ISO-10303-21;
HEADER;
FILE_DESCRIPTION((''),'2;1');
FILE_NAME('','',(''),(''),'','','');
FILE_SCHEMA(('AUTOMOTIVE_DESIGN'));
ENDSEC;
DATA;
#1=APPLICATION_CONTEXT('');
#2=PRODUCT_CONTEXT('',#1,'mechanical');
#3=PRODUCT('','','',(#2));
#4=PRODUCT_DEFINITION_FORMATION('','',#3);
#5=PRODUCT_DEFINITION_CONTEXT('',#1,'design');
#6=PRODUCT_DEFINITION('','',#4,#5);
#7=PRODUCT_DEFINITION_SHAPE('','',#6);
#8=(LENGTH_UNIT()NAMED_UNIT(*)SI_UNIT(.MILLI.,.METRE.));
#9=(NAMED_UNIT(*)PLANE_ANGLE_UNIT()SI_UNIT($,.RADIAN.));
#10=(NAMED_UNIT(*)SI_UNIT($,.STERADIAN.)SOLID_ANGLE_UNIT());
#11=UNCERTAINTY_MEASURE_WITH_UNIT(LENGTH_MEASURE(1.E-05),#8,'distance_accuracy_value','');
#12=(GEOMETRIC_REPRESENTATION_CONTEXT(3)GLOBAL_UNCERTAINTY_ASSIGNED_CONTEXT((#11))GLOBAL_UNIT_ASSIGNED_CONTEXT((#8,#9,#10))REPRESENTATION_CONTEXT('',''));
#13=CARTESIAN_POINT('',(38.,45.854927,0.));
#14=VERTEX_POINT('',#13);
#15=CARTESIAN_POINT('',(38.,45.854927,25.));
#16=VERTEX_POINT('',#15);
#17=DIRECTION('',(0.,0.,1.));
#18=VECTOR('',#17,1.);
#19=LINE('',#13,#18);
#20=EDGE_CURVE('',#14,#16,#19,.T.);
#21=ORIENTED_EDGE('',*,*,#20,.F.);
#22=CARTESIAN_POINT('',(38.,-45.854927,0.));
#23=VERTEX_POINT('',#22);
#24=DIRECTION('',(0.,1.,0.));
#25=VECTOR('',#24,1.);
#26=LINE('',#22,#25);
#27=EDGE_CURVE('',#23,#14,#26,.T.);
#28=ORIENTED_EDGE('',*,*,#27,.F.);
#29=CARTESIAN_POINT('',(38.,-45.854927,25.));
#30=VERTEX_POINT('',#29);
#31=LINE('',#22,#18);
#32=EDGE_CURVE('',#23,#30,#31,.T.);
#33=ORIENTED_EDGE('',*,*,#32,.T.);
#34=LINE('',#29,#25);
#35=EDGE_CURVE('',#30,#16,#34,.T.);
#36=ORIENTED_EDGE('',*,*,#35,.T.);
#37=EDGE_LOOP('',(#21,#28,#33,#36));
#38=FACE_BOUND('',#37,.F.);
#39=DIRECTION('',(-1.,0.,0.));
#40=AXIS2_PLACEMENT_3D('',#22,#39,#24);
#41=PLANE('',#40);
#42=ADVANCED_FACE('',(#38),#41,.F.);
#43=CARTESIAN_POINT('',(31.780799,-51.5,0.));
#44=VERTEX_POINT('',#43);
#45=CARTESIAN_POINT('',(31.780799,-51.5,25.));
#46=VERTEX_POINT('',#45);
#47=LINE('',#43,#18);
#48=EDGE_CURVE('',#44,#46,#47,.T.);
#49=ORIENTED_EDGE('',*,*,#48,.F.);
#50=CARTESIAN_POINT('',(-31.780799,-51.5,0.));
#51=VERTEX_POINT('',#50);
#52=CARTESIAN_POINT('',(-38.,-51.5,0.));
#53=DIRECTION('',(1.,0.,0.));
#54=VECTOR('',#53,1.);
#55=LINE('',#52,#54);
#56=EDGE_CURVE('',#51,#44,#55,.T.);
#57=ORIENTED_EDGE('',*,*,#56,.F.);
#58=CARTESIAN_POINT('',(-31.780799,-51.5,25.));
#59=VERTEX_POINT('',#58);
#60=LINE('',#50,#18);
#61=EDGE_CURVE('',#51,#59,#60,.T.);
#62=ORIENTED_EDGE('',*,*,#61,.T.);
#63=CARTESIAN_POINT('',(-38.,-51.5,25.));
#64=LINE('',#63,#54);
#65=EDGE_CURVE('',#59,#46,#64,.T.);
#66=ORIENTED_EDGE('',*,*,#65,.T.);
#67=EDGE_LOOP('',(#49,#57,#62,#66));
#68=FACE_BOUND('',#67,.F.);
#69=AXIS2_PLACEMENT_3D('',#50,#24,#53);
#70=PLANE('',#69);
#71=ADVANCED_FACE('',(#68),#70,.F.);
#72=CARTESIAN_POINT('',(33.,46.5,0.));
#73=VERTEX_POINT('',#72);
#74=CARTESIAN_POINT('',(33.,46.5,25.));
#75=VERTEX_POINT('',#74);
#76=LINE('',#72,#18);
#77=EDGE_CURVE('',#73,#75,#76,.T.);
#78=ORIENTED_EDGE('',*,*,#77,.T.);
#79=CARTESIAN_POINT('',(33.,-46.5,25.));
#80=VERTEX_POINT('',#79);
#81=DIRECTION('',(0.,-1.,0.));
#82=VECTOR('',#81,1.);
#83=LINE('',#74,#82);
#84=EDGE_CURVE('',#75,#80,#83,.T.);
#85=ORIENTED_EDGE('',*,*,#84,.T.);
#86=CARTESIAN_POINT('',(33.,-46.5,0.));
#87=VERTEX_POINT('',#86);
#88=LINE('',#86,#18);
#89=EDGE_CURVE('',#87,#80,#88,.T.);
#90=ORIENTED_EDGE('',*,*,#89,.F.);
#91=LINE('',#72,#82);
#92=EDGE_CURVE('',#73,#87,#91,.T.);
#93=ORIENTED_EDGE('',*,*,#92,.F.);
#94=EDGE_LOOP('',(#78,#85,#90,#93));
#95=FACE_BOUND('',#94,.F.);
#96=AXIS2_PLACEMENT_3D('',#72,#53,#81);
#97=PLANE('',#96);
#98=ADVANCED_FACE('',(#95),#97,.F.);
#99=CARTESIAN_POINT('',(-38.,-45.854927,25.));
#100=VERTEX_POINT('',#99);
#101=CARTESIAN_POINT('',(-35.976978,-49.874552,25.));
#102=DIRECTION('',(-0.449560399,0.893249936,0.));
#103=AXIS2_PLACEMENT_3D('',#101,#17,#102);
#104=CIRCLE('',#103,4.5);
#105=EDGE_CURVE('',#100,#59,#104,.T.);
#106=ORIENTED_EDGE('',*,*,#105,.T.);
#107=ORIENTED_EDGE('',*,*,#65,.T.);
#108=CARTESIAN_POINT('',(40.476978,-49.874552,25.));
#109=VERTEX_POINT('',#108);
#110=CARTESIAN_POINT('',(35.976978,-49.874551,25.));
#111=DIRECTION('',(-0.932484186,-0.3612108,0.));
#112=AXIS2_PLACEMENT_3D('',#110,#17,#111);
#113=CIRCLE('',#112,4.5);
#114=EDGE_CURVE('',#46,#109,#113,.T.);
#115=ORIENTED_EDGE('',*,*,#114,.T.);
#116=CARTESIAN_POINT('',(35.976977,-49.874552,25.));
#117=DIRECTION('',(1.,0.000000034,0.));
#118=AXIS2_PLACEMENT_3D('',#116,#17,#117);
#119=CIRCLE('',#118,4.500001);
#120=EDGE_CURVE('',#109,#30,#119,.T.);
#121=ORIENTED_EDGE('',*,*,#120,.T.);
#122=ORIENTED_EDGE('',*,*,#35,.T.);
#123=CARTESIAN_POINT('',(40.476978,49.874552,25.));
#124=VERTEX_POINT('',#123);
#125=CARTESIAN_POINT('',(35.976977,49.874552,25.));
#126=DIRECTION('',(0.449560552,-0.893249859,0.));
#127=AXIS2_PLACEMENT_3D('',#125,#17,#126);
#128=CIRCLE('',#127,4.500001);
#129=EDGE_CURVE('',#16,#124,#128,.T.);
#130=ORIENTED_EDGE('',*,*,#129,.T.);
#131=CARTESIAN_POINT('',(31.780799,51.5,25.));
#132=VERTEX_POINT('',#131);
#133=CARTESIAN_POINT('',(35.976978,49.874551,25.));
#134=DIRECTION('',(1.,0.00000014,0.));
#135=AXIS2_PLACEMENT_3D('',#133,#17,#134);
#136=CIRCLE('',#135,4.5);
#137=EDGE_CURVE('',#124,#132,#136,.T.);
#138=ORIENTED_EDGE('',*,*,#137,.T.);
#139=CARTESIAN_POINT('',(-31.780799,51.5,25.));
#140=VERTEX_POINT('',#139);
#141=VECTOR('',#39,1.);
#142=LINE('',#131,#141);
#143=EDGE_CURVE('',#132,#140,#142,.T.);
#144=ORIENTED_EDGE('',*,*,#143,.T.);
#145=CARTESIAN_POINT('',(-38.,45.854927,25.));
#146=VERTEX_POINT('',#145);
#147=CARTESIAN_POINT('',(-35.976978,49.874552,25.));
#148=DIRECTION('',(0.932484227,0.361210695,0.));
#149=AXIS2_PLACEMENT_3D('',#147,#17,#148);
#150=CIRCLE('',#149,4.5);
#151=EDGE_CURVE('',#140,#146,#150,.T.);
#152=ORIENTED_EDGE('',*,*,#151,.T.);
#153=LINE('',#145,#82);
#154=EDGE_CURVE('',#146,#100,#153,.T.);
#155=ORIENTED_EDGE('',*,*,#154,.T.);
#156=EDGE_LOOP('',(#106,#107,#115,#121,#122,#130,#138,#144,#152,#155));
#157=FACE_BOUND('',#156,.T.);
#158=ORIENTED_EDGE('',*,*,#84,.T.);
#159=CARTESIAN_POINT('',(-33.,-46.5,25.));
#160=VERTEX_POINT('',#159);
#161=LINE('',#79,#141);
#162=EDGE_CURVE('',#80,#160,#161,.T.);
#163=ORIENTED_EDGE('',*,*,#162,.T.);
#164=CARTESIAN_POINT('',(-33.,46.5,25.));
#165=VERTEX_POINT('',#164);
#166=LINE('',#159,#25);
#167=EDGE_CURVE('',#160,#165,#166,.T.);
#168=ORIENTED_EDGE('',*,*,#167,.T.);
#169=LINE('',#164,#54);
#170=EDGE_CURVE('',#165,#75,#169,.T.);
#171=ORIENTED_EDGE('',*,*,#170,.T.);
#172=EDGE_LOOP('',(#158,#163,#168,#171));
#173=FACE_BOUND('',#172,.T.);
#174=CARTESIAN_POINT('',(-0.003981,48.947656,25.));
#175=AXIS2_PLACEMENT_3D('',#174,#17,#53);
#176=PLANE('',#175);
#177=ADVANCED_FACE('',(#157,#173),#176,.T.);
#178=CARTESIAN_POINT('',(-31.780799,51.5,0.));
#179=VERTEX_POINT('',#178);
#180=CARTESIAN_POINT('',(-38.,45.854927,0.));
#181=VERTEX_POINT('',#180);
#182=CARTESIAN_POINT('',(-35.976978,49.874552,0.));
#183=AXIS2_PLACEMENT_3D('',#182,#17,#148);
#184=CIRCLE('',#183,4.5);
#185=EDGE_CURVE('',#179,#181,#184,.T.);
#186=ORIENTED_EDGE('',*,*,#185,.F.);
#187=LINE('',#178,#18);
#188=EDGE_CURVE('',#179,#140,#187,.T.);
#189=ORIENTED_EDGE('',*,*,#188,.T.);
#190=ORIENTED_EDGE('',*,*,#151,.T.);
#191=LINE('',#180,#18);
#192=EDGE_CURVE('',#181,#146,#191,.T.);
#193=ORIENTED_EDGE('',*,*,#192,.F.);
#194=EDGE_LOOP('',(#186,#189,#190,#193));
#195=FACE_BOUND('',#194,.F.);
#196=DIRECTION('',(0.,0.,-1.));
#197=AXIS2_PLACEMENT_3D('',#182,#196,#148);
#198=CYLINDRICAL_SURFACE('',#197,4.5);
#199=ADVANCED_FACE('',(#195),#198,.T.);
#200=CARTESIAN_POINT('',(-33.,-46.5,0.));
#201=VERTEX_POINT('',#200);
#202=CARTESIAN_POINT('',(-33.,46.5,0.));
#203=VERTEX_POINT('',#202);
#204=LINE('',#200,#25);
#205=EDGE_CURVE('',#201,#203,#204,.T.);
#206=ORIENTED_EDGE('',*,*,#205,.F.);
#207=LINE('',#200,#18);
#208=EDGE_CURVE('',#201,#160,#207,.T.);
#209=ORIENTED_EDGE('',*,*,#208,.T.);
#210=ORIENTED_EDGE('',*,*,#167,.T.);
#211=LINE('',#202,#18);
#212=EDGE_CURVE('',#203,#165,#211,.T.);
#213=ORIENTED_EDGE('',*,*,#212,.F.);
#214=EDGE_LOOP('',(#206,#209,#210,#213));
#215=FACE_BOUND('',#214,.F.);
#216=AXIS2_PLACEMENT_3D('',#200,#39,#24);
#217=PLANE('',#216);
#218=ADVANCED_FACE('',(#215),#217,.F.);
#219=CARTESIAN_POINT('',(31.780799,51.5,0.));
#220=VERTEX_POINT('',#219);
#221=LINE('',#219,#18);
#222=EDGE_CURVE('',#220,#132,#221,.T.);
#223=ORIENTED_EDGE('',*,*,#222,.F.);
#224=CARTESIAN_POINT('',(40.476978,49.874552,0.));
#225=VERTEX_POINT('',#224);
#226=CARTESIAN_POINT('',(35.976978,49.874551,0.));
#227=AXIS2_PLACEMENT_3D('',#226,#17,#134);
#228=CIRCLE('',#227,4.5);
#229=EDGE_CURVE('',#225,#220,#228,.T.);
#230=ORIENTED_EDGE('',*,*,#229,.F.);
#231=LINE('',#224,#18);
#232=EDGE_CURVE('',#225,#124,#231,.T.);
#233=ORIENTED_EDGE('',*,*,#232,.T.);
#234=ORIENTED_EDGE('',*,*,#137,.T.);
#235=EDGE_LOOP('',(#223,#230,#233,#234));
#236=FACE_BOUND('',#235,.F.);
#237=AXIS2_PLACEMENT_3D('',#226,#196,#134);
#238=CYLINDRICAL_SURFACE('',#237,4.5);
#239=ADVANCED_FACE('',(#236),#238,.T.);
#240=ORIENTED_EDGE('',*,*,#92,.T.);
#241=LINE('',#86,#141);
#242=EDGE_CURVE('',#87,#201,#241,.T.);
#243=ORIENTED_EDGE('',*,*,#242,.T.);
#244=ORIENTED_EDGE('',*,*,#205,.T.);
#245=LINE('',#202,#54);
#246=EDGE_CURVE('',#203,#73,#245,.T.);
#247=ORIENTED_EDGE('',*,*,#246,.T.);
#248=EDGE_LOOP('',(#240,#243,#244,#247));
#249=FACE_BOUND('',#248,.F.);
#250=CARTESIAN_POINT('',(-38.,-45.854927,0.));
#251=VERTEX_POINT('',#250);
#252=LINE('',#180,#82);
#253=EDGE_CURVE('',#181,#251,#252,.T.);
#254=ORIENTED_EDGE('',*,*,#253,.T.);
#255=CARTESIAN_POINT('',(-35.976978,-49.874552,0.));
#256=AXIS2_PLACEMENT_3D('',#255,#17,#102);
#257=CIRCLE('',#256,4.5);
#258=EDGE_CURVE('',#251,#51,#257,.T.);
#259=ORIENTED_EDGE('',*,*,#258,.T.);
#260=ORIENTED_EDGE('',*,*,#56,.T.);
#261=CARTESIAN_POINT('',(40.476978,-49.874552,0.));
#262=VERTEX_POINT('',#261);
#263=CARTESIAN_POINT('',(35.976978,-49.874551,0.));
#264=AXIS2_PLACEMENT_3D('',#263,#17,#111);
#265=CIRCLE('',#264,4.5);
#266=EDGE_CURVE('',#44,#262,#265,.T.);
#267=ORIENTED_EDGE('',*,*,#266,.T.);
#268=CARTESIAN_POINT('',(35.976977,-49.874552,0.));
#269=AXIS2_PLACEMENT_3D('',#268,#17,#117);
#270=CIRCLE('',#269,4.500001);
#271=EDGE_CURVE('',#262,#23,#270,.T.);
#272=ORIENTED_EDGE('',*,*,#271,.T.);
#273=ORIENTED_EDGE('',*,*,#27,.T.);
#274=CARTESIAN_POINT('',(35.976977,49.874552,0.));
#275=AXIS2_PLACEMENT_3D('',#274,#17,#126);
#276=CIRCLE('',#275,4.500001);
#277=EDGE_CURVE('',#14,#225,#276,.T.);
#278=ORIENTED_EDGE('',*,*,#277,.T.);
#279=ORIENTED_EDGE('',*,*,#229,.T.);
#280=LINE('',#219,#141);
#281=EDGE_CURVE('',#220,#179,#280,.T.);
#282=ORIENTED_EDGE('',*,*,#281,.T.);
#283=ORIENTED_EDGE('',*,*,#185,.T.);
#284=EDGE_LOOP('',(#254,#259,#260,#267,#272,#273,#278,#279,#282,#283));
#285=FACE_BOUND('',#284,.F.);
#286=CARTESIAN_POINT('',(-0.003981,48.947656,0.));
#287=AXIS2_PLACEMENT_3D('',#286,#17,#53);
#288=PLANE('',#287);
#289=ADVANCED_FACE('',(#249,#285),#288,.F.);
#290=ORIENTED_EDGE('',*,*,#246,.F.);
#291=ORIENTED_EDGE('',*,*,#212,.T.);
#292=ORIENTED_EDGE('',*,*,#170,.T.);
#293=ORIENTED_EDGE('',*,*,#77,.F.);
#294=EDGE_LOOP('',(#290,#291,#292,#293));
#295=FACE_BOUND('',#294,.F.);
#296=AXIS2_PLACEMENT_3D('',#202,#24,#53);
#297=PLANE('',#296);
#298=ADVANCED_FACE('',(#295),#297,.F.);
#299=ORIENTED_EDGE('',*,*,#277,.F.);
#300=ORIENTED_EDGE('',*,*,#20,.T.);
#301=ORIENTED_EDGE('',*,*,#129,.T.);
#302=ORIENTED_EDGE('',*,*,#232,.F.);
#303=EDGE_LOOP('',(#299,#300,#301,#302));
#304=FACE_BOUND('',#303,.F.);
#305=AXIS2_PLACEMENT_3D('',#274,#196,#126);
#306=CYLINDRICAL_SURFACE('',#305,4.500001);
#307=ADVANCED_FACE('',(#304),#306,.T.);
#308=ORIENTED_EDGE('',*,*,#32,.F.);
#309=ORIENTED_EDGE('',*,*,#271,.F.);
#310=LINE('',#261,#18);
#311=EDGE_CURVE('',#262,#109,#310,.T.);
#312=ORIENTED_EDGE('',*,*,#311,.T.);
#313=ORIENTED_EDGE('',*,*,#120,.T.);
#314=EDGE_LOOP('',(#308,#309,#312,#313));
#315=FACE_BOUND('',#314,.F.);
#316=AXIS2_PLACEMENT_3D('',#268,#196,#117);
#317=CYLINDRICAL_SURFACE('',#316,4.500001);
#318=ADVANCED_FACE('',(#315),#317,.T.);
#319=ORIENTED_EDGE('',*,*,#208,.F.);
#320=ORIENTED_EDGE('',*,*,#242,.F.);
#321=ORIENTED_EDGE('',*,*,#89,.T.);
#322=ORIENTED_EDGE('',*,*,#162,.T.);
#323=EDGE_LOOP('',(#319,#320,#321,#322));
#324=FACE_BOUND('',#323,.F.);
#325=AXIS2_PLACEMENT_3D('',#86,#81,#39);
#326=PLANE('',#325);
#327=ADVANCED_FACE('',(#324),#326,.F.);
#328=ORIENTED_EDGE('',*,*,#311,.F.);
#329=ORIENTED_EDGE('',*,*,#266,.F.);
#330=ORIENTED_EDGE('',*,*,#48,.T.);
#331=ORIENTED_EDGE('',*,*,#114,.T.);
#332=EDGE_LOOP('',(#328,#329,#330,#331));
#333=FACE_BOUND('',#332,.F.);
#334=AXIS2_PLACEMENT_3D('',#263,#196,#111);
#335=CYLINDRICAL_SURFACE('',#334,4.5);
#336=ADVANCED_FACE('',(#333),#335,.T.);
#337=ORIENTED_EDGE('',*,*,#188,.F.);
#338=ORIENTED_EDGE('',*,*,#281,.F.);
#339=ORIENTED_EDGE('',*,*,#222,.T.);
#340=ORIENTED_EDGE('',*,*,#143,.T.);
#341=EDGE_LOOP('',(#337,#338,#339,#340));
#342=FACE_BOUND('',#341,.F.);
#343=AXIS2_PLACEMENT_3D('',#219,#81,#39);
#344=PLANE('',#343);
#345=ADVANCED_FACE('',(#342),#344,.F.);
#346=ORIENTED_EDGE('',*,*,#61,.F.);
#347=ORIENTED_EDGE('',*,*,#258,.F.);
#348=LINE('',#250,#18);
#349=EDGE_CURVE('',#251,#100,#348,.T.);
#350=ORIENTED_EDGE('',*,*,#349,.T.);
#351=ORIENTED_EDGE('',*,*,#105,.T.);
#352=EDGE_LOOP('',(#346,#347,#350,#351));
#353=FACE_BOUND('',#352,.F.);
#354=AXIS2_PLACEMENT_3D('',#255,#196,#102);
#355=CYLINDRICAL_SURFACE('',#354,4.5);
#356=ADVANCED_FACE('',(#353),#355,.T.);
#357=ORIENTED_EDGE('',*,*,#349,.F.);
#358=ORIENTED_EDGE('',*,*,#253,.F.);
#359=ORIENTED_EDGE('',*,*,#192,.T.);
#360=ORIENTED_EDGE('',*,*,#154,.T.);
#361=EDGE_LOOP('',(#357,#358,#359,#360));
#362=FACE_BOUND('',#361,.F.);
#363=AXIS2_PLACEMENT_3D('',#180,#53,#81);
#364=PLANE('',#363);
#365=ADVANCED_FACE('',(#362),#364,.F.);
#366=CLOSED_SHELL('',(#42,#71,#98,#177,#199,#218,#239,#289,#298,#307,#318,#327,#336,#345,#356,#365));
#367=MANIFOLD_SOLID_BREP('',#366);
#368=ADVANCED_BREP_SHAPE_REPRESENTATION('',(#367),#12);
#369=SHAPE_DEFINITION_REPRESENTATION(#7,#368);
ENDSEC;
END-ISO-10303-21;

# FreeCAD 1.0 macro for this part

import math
import FreeCAD as App
import Part
import Sketcher


def add_polygon(sketch, points):
    """Adds a closed chain of lines whose ends are joined by coincident constraints."""
    first, n = sketch.GeometryCount, len(points)
    for a, b in zip(points, points[1:] + points[:1]):
        sketch.addGeometry(Part.LineSegment(App.Vector(*a, 0), App.Vector(*b, 0)), False)
    for i in range(n):
        sketch.addConstraint(Sketcher.Constraint("Coincident", first + i, 2, first + (i + 1) % n, 1))

doc = App.newDocument("Part")
body = doc.addObject("PartDesign::Body", "Body")

# Sketch on XY plane
sketch1 = body.newObject("Sketcher::SketchObject", "Sketch")
sketch1.AttachmentSupport = (doc.getObject("XY_Plane"), [""])
sketch1.MapMode = "FlatFace"
sketch1.addGeometry(Part.LineSegment(App.Vector(-38, 45.9, 0), App.Vector(-38, -45.9, 0)), False)  # 0
sketch1.addGeometry(Part.ArcOfCircle(Part.Circle(App.Vector(-36, -49.9, 0), App.Vector(0, 0, 1), 4.5), math.radians(117), math.radians(339)), False)  # 1
sketch1.addGeometry(Part.LineSegment(App.Vector(-31.8, -51.5, 0), App.Vector(31.8, -51.5, 0)), False)  # 2
sketch1.addGeometry(Part.ArcOfCircle(Part.Circle(App.Vector(36, -49.9, 0), App.Vector(0, 0, 1), 4.5), math.radians(-159), math.radians(0)), False)  # 3
sketch1.addGeometry(Part.ArcOfCircle(Part.Circle(App.Vector(36, -49.9, 0), App.Vector(0, 0, 1), 4.5), math.radians(0), math.radians(63)), False)  # 4
sketch1.addGeometry(Part.LineSegment(App.Vector(38, -45.9, 0), App.Vector(38, 45.9, 0)), False)  # 5
sketch1.addGeometry(Part.ArcOfCircle(Part.Circle(App.Vector(36, 49.9, 0), App.Vector(0, 0, 1), 4.5), math.radians(-63), math.radians(0)), False)  # 6
sketch1.addGeometry(Part.ArcOfCircle(Part.Circle(App.Vector(36, 49.9, 0), App.Vector(0, 0, 1), 4.5), math.radians(0), math.radians(159)), False)  # 7
sketch1.addGeometry(Part.LineSegment(App.Vector(31.8, 51.5, 0), App.Vector(-31.8, 51.5, 0)), False)  # 8
sketch1.addGeometry(Part.ArcOfCircle(Part.Circle(App.Vector(-36, 49.9, 0), App.Vector(0, 0, 1), 4.5), math.radians(21), math.radians(243)), False)  # 9
add_polygon(sketch1, [(33, -46.5), (-33, -46.5), (-33, 46.5), (33, 46.5)])  # lines 10-13
sketch1.addConstraint([
    Sketcher.Constraint("Coincident", 0, 2, 1, 1),
    Sketcher.Constraint("Coincident", 1, 2, 2, 1),
    Sketcher.Constraint("Coincident", 2, 2, 3, 1),
    Sketcher.Constraint("Tangent", 3, 2, 4, 1),
    Sketcher.Constraint("Coincident", 4, 2, 5, 1),
    Sketcher.Constraint("Coincident", 5, 2, 6, 1),
    Sketcher.Constraint("Tangent", 6, 2, 7, 1),
    Sketcher.Constraint("Coincident", 7, 2, 8, 1),
    Sketcher.Constraint("Coincident", 8, 2, 9, 1),
    Sketcher.Constraint("Coincident", 9, 2, 0, 1),
    Sketcher.Constraint("Vertical", 0),
    Sketcher.Constraint("Horizontal", 2),
    Sketcher.Constraint("Vertical", 5),
    Sketcher.Constraint("Horizontal", 8),
    Sketcher.Constraint("Horizontal", 10),
    Sketcher.Constraint("Vertical", 11),
    Sketcher.Constraint("Horizontal", 12),
    Sketcher.Constraint("Vertical", 13),
    Sketcher.Constraint("Equal", 1, 3),
    Sketcher.Constraint("Equal", 3, 4),
    Sketcher.Constraint("Equal", 4, 6),
    Sketcher.Constraint("Equal", 6, 7),
    Sketcher.Constraint("Equal", 7, 9),
    Sketcher.Constraint("Symmetric", 1, 3, 6, 3, -1, 1),
    Sketcher.Constraint("Symmetric", 3, 3, 9, 3, -1, 1),
    Sketcher.Constraint("Symmetric", 10, 2, 12, 2, -1, 1),
    Sketcher.Constraint("Symmetric", 1, 3, 3, 3, -2),
    Sketcher.Constraint("Horizontal", 4, 3, 3, 2),
    Sketcher.Constraint("Horizontal", 0, 2, 4, 2),
    Sketcher.Constraint("Horizontal", 9, 3, 6, 2),
    Sketcher.Constraint("Vertical", 2, 2, 7, 2),
    Sketcher.Constraint("Radius", 1, 4.5),
    Sketcher.Constraint("DistanceX", 10, 2, 10, 1, 66.0),
    Sketcher.Constraint("DistanceY", 11, 1, 11, 2, 93.0),
    Sketcher.Constraint("DistanceX", 0, 2, -1, 1, 38.0),
    Sketcher.Constraint("DistanceY", 1, 2, 10, 2, 5.0),
    Sketcher.Constraint("DistanceX", 1, 2, -1, 1, 31.780799),
    Sketcher.Constraint("DistanceY", 0, 2, 0, 1, 91.709854),
])
pad1 = body.newObject("PartDesign::Pad", "Pad")
pad1.Profile = sketch1
pad1.Length = 25

doc.recompute()
